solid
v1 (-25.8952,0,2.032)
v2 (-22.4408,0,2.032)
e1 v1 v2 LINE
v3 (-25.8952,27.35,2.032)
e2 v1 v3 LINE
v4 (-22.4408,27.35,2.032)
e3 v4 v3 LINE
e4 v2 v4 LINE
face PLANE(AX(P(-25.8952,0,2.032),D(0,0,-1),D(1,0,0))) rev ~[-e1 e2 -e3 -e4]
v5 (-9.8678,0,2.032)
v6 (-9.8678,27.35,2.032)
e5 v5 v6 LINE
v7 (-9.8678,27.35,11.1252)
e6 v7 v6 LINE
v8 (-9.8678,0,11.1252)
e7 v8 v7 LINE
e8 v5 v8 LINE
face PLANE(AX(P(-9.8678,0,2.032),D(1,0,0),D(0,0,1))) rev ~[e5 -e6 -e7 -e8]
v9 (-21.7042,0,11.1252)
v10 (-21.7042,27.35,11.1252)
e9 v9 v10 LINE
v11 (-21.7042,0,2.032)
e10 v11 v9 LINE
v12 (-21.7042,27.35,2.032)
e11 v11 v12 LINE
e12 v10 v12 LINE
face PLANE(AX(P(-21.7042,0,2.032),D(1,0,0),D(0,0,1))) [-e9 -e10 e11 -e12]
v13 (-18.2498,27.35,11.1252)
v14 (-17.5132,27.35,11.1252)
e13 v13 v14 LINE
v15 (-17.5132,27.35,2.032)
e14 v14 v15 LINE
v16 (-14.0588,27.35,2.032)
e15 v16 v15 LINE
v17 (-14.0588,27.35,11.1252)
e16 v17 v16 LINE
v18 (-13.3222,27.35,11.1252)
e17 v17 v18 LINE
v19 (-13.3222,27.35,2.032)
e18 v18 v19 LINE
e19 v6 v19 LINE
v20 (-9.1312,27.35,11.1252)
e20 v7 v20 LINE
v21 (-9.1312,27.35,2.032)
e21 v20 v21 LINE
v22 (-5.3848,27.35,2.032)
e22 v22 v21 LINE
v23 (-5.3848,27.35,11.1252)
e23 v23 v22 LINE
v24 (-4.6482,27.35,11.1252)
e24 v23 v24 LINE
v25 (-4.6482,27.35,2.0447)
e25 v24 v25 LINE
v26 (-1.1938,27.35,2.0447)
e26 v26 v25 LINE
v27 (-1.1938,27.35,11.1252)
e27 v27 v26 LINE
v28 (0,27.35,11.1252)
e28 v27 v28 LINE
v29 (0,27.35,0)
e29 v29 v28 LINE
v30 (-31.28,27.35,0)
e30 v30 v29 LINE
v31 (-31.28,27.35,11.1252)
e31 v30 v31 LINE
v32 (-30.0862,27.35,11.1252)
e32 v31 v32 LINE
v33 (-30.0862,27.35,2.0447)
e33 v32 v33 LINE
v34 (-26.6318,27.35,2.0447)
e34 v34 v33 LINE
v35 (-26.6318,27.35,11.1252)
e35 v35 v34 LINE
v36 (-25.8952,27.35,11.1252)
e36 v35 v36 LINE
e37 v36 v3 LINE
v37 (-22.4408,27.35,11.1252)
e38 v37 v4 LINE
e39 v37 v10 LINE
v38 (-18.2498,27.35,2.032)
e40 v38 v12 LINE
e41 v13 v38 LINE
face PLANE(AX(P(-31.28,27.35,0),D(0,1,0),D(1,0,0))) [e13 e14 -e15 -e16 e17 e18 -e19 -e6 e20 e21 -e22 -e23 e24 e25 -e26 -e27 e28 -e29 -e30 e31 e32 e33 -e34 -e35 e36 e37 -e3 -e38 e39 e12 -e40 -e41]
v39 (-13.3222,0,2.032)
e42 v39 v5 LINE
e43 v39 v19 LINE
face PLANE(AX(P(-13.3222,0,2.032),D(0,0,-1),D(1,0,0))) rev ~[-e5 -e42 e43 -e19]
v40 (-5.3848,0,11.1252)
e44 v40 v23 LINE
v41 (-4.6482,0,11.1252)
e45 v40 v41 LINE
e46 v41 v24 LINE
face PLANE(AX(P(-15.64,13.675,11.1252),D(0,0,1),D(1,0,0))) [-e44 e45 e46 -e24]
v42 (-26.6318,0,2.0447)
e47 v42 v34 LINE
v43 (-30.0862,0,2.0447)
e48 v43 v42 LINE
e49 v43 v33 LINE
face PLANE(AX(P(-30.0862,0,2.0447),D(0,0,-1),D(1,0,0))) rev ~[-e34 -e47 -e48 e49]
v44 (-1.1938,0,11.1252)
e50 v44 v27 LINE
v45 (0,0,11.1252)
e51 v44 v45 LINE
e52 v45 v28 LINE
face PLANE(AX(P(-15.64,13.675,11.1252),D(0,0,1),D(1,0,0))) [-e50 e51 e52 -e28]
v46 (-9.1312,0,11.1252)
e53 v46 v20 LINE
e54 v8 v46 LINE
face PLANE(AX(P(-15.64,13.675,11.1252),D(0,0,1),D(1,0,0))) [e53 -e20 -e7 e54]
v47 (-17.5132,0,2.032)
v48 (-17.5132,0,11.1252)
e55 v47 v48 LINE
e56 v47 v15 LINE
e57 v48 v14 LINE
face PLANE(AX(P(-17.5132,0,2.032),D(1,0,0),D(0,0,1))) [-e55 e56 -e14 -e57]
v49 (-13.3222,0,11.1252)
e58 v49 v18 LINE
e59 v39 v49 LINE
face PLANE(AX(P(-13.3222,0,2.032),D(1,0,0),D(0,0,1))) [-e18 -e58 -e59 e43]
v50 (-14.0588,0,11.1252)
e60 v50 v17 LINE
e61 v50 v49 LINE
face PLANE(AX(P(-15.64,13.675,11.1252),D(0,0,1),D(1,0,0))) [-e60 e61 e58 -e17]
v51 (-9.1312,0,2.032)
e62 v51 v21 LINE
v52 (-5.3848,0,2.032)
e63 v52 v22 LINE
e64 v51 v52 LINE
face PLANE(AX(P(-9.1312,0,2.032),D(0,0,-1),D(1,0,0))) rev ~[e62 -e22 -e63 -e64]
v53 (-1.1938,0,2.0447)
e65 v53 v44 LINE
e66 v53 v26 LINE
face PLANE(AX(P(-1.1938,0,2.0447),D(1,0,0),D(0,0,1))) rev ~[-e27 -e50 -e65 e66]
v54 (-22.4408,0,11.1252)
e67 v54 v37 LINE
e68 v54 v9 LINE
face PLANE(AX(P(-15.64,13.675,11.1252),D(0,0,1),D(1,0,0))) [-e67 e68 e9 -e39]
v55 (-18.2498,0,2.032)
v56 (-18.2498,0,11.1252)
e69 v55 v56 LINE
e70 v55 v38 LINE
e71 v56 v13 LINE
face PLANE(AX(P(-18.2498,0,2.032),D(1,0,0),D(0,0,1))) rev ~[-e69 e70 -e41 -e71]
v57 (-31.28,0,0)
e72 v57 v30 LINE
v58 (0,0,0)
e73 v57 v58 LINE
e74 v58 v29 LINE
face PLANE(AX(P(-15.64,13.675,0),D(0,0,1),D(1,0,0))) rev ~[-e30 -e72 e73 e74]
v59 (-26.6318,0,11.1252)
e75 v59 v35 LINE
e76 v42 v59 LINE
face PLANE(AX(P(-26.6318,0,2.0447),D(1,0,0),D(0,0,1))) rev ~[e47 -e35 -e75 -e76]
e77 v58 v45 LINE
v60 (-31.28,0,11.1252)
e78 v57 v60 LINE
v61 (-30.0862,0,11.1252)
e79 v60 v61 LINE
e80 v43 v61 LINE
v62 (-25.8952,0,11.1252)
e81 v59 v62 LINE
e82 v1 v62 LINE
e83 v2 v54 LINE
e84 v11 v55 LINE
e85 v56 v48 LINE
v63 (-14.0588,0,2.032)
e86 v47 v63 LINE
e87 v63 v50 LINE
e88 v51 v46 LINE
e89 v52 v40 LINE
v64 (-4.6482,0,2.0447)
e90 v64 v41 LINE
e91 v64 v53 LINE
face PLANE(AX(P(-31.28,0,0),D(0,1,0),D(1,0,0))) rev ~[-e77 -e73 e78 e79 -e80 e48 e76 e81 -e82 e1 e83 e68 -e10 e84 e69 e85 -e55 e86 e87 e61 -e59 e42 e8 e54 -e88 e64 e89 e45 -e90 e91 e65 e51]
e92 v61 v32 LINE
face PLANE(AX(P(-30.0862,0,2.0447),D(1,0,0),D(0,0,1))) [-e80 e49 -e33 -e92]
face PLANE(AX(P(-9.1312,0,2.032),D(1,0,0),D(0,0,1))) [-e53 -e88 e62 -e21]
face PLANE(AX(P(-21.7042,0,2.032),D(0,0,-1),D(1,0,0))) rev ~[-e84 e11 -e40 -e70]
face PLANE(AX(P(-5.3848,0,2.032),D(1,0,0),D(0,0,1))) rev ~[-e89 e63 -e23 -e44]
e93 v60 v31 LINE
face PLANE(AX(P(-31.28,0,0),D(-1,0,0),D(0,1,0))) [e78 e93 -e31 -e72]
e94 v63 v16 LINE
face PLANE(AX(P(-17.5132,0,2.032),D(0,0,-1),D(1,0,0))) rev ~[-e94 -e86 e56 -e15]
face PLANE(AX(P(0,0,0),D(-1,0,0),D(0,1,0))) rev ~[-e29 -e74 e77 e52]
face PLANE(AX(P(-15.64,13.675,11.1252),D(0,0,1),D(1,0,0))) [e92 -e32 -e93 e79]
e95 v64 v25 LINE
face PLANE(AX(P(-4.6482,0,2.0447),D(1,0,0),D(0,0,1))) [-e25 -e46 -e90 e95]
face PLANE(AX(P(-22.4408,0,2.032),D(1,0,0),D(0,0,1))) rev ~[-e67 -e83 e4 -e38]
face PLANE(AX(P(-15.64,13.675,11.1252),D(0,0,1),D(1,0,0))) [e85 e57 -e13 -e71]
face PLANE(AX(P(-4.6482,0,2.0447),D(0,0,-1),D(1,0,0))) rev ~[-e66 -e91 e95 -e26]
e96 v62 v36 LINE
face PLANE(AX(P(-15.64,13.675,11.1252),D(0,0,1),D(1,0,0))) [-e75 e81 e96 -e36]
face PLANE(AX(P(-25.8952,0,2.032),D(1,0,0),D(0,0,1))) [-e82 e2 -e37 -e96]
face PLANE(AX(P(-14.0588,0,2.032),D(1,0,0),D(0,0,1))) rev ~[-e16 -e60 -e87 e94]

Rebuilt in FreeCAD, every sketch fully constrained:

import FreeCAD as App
import Part
import Sketcher
Q = App.Units.Quantity


def add_polygon(sketch, points):
    """Adds a closed chain of lines whose ends are joined by coincident constraints."""
    first, n = sketch.GeometryCount, len(points)
    for a, b in zip(points, points[1:] + points[:1]):
        sketch.addGeometry(Part.LineSegment(App.Vector(*a, 0), App.Vector(*b, 0)), False)
    for i in range(n):
        sketch.addConstraint(Sketcher.Constraint("Coincident", first + i, 2, first + (i + 1) % n, 1))

doc = App.newDocument("Part")
body = doc.addObject("PartDesign::Body", "Body")

# Sketch on XY plane
sketch1 = body.newObject("Sketcher::SketchObject", "Sketch")
sketch1.AttachmentSupport = (doc.getObject("XY_Plane"), [""])
sketch1.MapMode = "FlatFace"
add_polygon(sketch1, [(-31.28, 27.35), (-31.28, 0), (0, 0), (0, 27.35)])  # lines 0-3
sketch1.addConstraint(Sketcher.Constraint("Vertical", 0))
sketch1.addConstraint(Sketcher.Constraint("Horizontal", 1))
sketch1.addConstraint(Sketcher.Constraint("Vertical", 2))
sketch1.addConstraint(Sketcher.Constraint("Horizontal", 3))
sketch1.addConstraint(Sketcher.Constraint("Coincident", 1, 2, -1, 1))
sketch1.addConstraint(Sketcher.Constraint("DistanceX", 1, 1, 1, 2, 31.28))
sketch1.addConstraint(Sketcher.Constraint("DistanceY", 0, 2, 0, 1, 27.35))
pad1 = body.newObject("PartDesign::Pad", "Pad")
pad1.Profile = sketch1
pad1.Length = Q("0.438 in")

# Sketch on XZ plane
sketch2 = body.newObject("Sketcher::SketchObject", "Sketch001")
sketch2.AttachmentSupport = (doc.getObject("XZ_Plane"), [""])
sketch2.MapMode = "FlatFace"
add_polygon(sketch2, [(-25.8952, 11.1252), (-25.8952, 2.032), (-22.4408, 2.032), (-22.4408, 11.1252)])  # lines 0-3
add_polygon(sketch2, [(-21.7042, 11.1252), (-21.7042, 2.032), (-18.2498, 2.032), (-18.2498, 11.1252)])  # lines 4-7
add_polygon(sketch2, [(-17.5132, 11.1252), (-17.5132, 2.032), (-14.0588, 2.032), (-14.0588, 11.1252)])  # lines 8-11
add_polygon(sketch2, [(-13.3222, 11.1252), (-13.3222, 2.032), (-9.8678, 2.032), (-9.8678, 11.1252)])  # lines 12-15
add_polygon(sketch2, [(-9.1312, 11.1252), (-9.1312, 2.032), (-5.3848, 2.032), (-5.3848, 11.1252)])  # lines 16-19
add_polygon(sketch2, [(-4.6482, 11.1252), (-4.6482, 2.0447), (-1.1938, 2.0447), (-1.1938, 11.1252)])  # lines 20-23
add_polygon(sketch2, [(-30.0862, 11.1252), (-30.0862, 2.0447), (-26.6318, 2.0447), (-26.6318, 11.1252)])  # lines 24-27
sketch2.addConstraint(Sketcher.Constraint("Vertical", 0))
sketch2.addConstraint(Sketcher.Constraint("Horizontal", 1))
sketch2.addConstraint(Sketcher.Constraint("Vertical", 2))
sketch2.addConstraint(Sketcher.Constraint("Horizontal", 3))
sketch2.addConstraint(Sketcher.Constraint("Vertical", 4))
sketch2.addConstraint(Sketcher.Constraint("Horizontal", 5))
sketch2.addConstraint(Sketcher.Constraint("Vertical", 6))
sketch2.addConstraint(Sketcher.Constraint("Horizontal", 7))
sketch2.addConstraint(Sketcher.Constraint("Vertical", 8))
sketch2.addConstraint(Sketcher.Constraint("Horizontal", 9))
sketch2.addConstraint(Sketcher.Constraint("Vertical", 10))
sketch2.addConstraint(Sketcher.Constraint("Horizontal", 11))
sketch2.addConstraint(Sketcher.Constraint("Vertical", 12))
sketch2.addConstraint(Sketcher.Constraint("Horizontal", 13))
sketch2.addConstraint(Sketcher.Constraint("Vertical", 14))
sketch2.addConstraint(Sketcher.Constraint("Horizontal", 15))
sketch2.addConstraint(Sketcher.Constraint("Vertical", 16))
sketch2.addConstraint(Sketcher.Constraint("Horizontal", 17))
sketch2.addConstraint(Sketcher.Constraint("Vertical", 18))
sketch2.addConstraint(Sketcher.Constraint("Horizontal", 19))
sketch2.addConstraint(Sketcher.Constraint("Vertical", 20))
sketch2.addConstraint(Sketcher.Constraint("Horizontal", 21))
sketch2.addConstraint(Sketcher.Constraint("Vertical", 22))
sketch2.addConstraint(Sketcher.Constraint("Horizontal", 23))
sketch2.addConstraint(Sketcher.Constraint("Vertical", 24))
sketch2.addConstraint(Sketcher.Constraint("Horizontal", 25))
sketch2.addConstraint(Sketcher.Constraint("Vertical", 26))
sketch2.addConstraint(Sketcher.Constraint("Horizontal", 27))
sketch2.addConstraint(Sketcher.Constraint("Horizontal", 1, 2, 4, 2))
sketch2.addConstraint(Sketcher.Constraint("Horizontal", 3, 2, 6, 2))
sketch2.addConstraint(Sketcher.Constraint("Horizontal", 5, 2, 8, 2))
sketch2.addConstraint(Sketcher.Constraint("Horizontal", 7, 2, 10, 2))
sketch2.addConstraint(Sketcher.Constraint("Horizontal", 9, 2, 12, 2))
sketch2.addConstraint(Sketcher.Constraint("Horizontal", 11, 2, 14, 2))
sketch2.addConstraint(Sketcher.Constraint("Horizontal", 13, 2, 16, 2))
sketch2.addConstraint(Sketcher.Constraint("Horizontal", 15, 2, 18, 2))
sketch2.addConstraint(Sketcher.Constraint("Horizontal", 19, 2, 22, 2))
sketch2.addConstraint(Sketcher.Constraint("Horizontal", 21, 2, 24, 2))
sketch2.addConstraint(Sketcher.Constraint("Horizontal", 23, 2, 26, 2))
sketch2.addConstraint(Sketcher.Constraint("Equal", 3, 5))
sketch2.addConstraint(Sketcher.Constraint("Equal", 7, 9))
sketch2.addConstraint(Sketcher.Constraint("Equal", 11, 13))
sketch2.addConstraint(Sketcher.Constraint("Equal", 15, 21))
sketch2.addConstraint(Sketcher.Constraint("Equal", 23, 25))
sketch2.addConstraint(Sketcher.Constraint("DistanceX", 1, 1, 1, 2, Q("0.136 in")))
sketch2.addConstraint(Sketcher.Constraint("DistanceY", 0, 2, 0, 1, Q("0.358 in")))
sketch2.addConstraint(Sketcher.Constraint("DistanceY", -1, 1, 0, 2, Q("0.08 in")))
sketch2.addConstraint(Sketcher.Constraint("DistanceX", 0, 2, 8, 2, Q("0.33 in")))
sketch2.addConstraint(Sketcher.Constraint("DistanceX", 4, 2, 12, 2, Q("0.33 in")))
sketch2.addConstraint(Sketcher.Constraint("DistanceX", 8, 2, 16, 2, Q("0.33 in")))
sketch2.addConstraint(Sketcher.Constraint("DistanceX", 24, 2, 4, 2, Q("0.33 in")))
sketch2.addConstraint(Sketcher.Constraint("DistanceY", 20, 2, 20, 1, Q("0.3575 in")))
sketch2.addConstraint(Sketcher.Constraint("DistanceX", 17, 2, -1, 1, Q("0.212 in")))
sketch2.addConstraint(Sketcher.Constraint("DistanceX", 20, 2, -1, 1, Q("0.183 in")))
sketch2.addConstraint(Sketcher.Constraint("DistanceX", 1, 2, 4, 2, Q("0.029 in")))
sketch2.addConstraint(Sketcher.Constraint("DistanceX", 17, 1, 17, 2, 3.7464))
pocket1 = body.newObject("PartDesign::Pocket", "Pocket")
pocket1.Profile = sketch2
pocket1.Type = "ThroughAll"

doc.recompute()
